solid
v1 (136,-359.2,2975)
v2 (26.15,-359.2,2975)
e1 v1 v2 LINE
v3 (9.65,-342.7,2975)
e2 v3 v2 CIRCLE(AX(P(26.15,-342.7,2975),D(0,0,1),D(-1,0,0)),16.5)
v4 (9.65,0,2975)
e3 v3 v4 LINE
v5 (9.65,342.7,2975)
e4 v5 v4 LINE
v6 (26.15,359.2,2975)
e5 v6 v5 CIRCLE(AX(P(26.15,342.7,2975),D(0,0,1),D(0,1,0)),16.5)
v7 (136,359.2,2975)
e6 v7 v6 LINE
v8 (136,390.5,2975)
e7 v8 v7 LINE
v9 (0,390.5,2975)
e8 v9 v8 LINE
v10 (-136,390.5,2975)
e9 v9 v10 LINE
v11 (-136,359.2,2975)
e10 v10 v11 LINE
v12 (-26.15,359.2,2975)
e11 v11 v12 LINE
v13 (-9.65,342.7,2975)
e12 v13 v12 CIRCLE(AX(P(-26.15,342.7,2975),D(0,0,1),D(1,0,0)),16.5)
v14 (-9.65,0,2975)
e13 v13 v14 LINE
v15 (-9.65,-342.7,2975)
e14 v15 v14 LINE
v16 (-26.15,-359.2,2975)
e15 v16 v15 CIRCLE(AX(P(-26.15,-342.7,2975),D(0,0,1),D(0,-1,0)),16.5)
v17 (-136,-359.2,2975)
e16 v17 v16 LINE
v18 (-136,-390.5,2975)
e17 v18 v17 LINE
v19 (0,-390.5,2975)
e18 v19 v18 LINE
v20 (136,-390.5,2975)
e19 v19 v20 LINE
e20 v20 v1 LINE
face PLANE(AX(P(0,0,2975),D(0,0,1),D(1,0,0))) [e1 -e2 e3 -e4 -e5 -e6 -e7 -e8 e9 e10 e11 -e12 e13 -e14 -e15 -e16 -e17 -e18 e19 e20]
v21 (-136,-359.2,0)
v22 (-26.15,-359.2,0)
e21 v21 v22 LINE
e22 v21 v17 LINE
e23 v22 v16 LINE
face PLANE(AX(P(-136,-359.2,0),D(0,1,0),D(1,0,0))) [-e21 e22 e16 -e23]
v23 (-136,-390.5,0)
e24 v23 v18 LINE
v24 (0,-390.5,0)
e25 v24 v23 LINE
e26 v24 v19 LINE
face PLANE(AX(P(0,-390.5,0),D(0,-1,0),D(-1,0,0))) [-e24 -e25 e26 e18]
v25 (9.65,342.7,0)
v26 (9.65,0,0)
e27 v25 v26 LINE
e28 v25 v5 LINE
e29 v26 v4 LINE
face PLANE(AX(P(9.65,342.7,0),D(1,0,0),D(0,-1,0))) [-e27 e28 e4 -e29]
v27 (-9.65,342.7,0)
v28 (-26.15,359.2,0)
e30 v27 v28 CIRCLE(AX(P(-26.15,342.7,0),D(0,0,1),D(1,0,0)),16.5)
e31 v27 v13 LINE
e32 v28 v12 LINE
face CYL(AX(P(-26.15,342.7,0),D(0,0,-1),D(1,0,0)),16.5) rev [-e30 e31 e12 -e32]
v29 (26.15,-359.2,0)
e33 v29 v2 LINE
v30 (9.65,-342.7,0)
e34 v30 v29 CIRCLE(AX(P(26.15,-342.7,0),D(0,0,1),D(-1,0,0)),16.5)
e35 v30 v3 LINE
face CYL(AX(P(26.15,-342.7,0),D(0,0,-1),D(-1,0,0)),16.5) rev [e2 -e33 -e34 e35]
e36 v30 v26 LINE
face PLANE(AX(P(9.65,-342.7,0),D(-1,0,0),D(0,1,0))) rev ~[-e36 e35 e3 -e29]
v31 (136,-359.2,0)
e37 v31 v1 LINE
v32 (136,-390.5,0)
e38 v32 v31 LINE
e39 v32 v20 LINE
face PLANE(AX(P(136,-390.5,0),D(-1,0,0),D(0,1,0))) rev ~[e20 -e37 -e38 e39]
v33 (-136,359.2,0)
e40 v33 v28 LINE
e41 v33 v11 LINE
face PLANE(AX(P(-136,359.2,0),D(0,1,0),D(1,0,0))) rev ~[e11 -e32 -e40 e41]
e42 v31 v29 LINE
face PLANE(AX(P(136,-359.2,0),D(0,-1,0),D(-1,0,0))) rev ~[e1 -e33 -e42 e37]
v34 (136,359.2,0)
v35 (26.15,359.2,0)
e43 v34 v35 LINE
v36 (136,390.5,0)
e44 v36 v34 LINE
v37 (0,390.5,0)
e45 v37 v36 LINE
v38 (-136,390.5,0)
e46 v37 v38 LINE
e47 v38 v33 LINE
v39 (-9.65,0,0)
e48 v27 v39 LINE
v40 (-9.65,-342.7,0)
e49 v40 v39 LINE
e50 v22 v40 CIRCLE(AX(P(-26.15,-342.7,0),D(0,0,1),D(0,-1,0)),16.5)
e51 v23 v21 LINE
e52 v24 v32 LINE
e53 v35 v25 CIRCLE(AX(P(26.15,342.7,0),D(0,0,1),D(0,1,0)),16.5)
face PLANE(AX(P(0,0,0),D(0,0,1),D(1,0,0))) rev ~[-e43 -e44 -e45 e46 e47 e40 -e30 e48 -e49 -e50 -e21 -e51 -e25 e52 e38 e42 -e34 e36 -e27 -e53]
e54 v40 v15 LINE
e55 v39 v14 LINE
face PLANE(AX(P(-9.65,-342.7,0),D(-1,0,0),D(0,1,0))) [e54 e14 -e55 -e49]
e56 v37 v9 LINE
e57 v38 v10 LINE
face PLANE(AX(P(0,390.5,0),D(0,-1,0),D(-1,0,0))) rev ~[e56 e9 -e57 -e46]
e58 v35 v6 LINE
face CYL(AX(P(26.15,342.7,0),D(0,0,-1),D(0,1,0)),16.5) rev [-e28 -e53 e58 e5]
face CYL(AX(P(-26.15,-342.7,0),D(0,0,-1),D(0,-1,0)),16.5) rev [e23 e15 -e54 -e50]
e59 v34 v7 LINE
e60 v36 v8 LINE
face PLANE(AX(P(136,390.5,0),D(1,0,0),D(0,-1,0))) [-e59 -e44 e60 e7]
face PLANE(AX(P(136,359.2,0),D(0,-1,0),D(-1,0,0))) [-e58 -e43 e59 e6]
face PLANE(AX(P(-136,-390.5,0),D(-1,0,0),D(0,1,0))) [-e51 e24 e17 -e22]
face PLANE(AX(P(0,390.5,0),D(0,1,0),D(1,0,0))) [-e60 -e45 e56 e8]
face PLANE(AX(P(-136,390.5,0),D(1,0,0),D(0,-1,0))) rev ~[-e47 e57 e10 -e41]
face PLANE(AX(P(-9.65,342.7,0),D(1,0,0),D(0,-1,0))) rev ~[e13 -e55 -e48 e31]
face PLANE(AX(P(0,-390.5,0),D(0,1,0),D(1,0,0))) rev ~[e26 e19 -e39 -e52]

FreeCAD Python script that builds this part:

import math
import FreeCAD as App
import Part
import Sketcher

V = App.Vector
Q = App.Units.Quantity

doc = App.newDocument("Part")
params = doc.addObject("Spreadsheet::Sheet", "Params")
for row, (alias, value) in enumerate([
    ("sketch1_radius", "16.5 mm"),
    ("sketch1_height", "31.3 mm"),
    ("pad1_length", "2975 mm"),
], start=1):
    params.set(f"A{row}", alias)
    params.set(f"B{row}", "=" + value)
    params.setAlias(f"B{row}", alias)

body = doc.addObject("PartDesign::Body", "Body")

# Sketch on XY plane
sketch1 = doc.addObject("Sketcher::SketchObject", "Sketch")
body.addObject(sketch1)
sketch1.AttachmentSupport = (doc.XY_Plane, [""])
sketch1.MapMode = "FlatFace"
sketch1.addGeometry([
    Part.LineSegment(V(-136, -359, 0), V(-136, -390, 0)),  # 0
    Part.LineSegment(V(-136, -390, 0), V(136, -390, 0)),  # 1
    Part.LineSegment(V(136, -390, 0), V(136, -359, 0)),  # 2
    Part.LineSegment(V(136, -359, 0), V(26, -359, 0)),  # 3
    Part.ArcOfCircle(Part.Circle(V(26, -343, 0), V(0, 0, 1), 16), math.radians(180), math.radians(270)),  # 4
    Part.LineSegment(V(10, -343, 0), V(10, 343, 0)),  # 5
    Part.ArcOfCircle(Part.Circle(V(26, 343, 0), V(0, 0, 1), 16), math.radians(90), math.radians(180)),  # 6
    Part.LineSegment(V(26, 359, 0), V(136, 359, 0)),  # 7
    Part.LineSegment(V(136, 359, 0), V(136, 390, 0)),  # 8
    Part.LineSegment(V(136, 390, 0), V(-136, 390, 0)),  # 9
    Part.LineSegment(V(-136, 390, 0), V(-136, 359, 0)),  # 10
    Part.LineSegment(V(-136, 359, 0), V(-26, 359, 0)),  # 11
    Part.ArcOfCircle(Part.Circle(V(-26, 343, 0), V(0, 0, 1), 16), math.radians(0), math.radians(90)),  # 12
    Part.LineSegment(V(-10, 343, 0), V(-10, -343, 0)),  # 13
    Part.ArcOfCircle(Part.Circle(V(-26, -343, 0), V(0, 0, 1), 16), math.radians(-90), math.radians(0)),  # 14
    Part.LineSegment(V(-26, -359, 0), V(-136, -359, 0)),  # 15
], False)
sketch1.addConstraint([
    Sketcher.Constraint("Coincident", 0, 2, 1, 1),
    Sketcher.Constraint("Coincident", 1, 2, 2, 1),
    Sketcher.Constraint("Coincident", 2, 2, 3, 1),
    Sketcher.Constraint("Tangent", 3, 2, 4, 2),
    Sketcher.Constraint("Tangent", 4, 1, 5, 1),
    Sketcher.Constraint("Tangent", 5, 2, 6, 2),
    Sketcher.Constraint("Tangent", 6, 1, 7, 1),
    Sketcher.Constraint("Coincident", 7, 2, 8, 1),
    Sketcher.Constraint("Coincident", 8, 2, 9, 1),
    Sketcher.Constraint("Coincident", 9, 2, 10, 1),
    Sketcher.Constraint("Coincident", 10, 2, 11, 1),
    Sketcher.Constraint("Tangent", 11, 2, 12, 2),
    Sketcher.Constraint("Tangent", 12, 1, 13, 1),
    Sketcher.Constraint("Tangent", 13, 2, 14, 2),
    Sketcher.Constraint("Tangent", 14, 1, 15, 1),
    Sketcher.Constraint("Coincident", 15, 2, 0, 1),
    Sketcher.Constraint("Vertical", 0),
    Sketcher.Constraint("Horizontal", 1),
    Sketcher.Constraint("Vertical", 2),
    Sketcher.Constraint("Horizontal", 3),
    Sketcher.Constraint("Vertical", 5),
    Sketcher.Constraint("Horizontal", 7),
    Sketcher.Constraint("Vertical", 8),
    Sketcher.Constraint("Horizontal", 9),
    Sketcher.Constraint("Vertical", 10),
    Sketcher.Constraint("Horizontal", 11),
    Sketcher.Constraint("Vertical", 13),
    Sketcher.Constraint("Horizontal", 15),
    Sketcher.Constraint("Equal", 4, 6),
    Sketcher.Constraint("Equal", 6, 12),
    Sketcher.Constraint("Equal", 12, 14),
    Sketcher.Constraint("Symmetric", 4, 3, 12, 3, -1, 1),
    Sketcher.Constraint("Symmetric", 0, 2, 8, 2, -1, 1),
    Sketcher.Constraint("Symmetric", 7, 2, 10, 2, -2),
    Sketcher.Constraint("Symmetric", 2, 2, 15, 2, -2),
    Sketcher.Constraint("Radius", 4, Q("16.5 mm")),
    Sketcher.Constraint("DistanceY", 0, 2, 0, 1, Q("31.3 mm")),
    Sketcher.Constraint("DistanceX", 0, 2, -1, 1, Q("136 mm")),
    Sketcher.Constraint("DistanceY", 0, 2, -1, 1, Q("390.5 mm")),
    Sketcher.Constraint("DistanceX", -1, 1, 4, 1, Q("9.65 mm")),
])
sketch1.setExpression("Constraints[35]", "Params.sketch1_radius")
sketch1.setExpression("Constraints[36]", "Params.sketch1_height")
pad1 = doc.addObject("PartDesign::Pad", "Pad")
body.addObject(pad1)
pad1.Profile = sketch1
pad1.setExpression("Length", "Params.pad1_length")

doc.recompute()
